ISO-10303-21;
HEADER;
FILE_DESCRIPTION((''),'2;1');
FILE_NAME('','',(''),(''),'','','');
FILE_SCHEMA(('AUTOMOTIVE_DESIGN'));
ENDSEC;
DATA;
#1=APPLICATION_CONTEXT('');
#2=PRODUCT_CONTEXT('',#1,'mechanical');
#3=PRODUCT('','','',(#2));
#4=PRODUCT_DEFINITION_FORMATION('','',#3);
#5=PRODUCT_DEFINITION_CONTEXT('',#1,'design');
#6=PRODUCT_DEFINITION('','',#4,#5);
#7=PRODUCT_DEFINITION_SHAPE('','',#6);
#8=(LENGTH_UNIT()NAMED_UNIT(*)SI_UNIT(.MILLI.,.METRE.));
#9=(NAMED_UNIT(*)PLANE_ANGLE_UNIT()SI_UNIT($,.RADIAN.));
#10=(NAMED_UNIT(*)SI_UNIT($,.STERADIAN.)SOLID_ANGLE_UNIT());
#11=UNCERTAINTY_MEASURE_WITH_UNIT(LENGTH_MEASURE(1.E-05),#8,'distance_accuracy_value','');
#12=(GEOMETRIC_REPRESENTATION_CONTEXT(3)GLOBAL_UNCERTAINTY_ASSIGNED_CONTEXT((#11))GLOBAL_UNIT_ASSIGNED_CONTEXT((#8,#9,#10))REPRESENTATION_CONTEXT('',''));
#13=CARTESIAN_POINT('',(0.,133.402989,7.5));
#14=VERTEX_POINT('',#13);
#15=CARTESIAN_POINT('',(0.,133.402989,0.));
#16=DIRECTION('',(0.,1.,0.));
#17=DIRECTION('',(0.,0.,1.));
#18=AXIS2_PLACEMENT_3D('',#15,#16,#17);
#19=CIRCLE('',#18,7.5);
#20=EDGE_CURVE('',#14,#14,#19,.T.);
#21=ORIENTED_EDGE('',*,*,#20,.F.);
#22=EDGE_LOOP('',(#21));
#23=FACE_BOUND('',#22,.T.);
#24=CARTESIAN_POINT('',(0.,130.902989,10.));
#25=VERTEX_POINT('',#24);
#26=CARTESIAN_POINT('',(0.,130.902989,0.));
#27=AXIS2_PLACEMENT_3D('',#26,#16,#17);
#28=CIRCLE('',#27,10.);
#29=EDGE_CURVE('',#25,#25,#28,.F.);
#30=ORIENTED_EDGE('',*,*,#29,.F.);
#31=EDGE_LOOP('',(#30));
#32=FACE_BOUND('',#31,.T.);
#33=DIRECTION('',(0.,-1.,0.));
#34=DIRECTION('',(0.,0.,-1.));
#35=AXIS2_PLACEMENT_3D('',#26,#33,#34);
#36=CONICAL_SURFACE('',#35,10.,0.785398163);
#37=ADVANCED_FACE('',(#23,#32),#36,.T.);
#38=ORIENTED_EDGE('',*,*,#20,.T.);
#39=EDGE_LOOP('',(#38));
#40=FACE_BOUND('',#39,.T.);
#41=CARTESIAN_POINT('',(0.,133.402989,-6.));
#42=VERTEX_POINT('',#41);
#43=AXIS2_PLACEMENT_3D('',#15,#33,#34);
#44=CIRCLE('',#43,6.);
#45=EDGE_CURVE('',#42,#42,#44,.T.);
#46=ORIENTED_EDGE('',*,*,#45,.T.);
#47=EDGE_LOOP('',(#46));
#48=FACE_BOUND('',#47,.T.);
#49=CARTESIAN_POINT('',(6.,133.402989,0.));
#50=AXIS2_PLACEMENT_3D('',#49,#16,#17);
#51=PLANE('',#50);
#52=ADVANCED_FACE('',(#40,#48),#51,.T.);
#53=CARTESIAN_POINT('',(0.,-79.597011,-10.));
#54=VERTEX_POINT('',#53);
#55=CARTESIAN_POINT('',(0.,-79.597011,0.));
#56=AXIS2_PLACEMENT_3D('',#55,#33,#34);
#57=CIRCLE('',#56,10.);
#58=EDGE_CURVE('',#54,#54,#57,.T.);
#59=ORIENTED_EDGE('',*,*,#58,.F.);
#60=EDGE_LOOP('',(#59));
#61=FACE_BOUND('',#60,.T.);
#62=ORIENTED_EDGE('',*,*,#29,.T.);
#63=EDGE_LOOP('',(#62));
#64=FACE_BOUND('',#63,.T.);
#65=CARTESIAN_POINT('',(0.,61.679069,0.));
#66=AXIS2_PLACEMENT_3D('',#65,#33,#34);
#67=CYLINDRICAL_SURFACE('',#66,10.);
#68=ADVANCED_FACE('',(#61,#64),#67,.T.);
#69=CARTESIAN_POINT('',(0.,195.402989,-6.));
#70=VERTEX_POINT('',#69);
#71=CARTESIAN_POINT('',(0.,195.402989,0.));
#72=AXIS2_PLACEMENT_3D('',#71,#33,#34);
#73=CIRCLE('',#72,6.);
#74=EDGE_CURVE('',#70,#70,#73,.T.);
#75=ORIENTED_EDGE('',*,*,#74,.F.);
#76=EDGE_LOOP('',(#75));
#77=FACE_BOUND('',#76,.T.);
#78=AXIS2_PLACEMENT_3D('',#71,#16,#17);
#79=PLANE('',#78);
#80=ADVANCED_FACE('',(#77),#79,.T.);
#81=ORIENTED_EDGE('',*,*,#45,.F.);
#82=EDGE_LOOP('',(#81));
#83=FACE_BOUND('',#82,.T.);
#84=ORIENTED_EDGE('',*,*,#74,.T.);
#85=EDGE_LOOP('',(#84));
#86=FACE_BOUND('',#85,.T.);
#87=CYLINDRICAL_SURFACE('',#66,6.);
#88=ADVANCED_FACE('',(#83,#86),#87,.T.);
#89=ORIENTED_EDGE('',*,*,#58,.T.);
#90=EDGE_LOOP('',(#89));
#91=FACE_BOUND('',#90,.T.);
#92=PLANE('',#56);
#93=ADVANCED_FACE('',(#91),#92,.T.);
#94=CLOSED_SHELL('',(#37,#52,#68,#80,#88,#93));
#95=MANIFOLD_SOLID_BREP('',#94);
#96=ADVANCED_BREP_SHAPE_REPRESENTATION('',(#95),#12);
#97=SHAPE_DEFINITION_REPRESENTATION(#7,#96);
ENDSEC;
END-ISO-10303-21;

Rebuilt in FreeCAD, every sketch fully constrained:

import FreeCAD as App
import Part
import Sketcher
Q = App.Units.Quantity


def edges_at(feature, points):
    """Names of the edges that pass closest to the given points."""
    edges = feature.Shape.Edges
    near = lambda p: min(range(len(edges)), key=lambda i: edges[i].distToShape(Part.Vertex(*p))[0])
    return sorted({f"Edge{near(p) + 1}" for p in points})

doc = App.newDocument("Part")
body = doc.addObject("PartDesign::Body", "Body")

sketch1 = doc.addObject("Sketcher::SketchObject", "Sketch")
body.addObject(sketch1)
sketch1.AttachmentSupport = (doc.XY_Plane, [""])
sketch1.MapMode = "FlatFace"
sketch1.addGeometry([
    Part.LineSegment(App.Vector(0, -79.6, 0), App.Vector(10, -79.6, 0)),
    Part.LineSegment(App.Vector(10, -79.6, 0), App.Vector(10, 133.4, 0)),
    Part.LineSegment(App.Vector(10, 133.4, 0), App.Vector(6, 133.4, 0)),
    Part.LineSegment(App.Vector(6, 133.4, 0), App.Vector(6, 195.4, 0)),
    Part.LineSegment(App.Vector(6, 195.4, 0), App.Vector(0, 195.4, 0)),
    Part.LineSegment(App.Vector(0, 195.4, 0), App.Vector(0, -79.6, 0)),
], False)
sketch1.addConstraint([
    Sketcher.Constraint("Coincident", 0, 2, 1, 1),
    Sketcher.Constraint("Coincident", 1, 2, 2, 1),
    Sketcher.Constraint("Coincident", 2, 2, 3, 1),
    Sketcher.Constraint("Coincident", 3, 2, 4, 1),
    Sketcher.Constraint("Coincident", 4, 2, 5, 1),
    Sketcher.Constraint("Coincident", 5, 2, 0, 1),
    Sketcher.Constraint("Horizontal", 0),
    Sketcher.Constraint("Vertical", 1),
    Sketcher.Constraint("Horizontal", 2),
    Sketcher.Constraint("Vertical", 3),
    Sketcher.Constraint("Horizontal", 4),
    Sketcher.Constraint("Vertical", 5),
    Sketcher.Constraint("PointOnObject", 4, 2, -2),
    Sketcher.Constraint("DistanceX", 0, 1, 0, 2, Q("10 mm")),
    Sketcher.Constraint("DistanceX", 2, 2, 2, 1, Q("4 mm")),
    Sketcher.Constraint("DistanceY", 1, 1, 1, 2, Q("213 mm")),
    Sketcher.Constraint("DistanceY", 3, 1, 3, 2, Q("62 mm")),
    Sketcher.Constraint("DistanceY", 0, 2, -1, 1, Q("79.597011 mm")),
])
revolution = doc.addObject("PartDesign::Revolution", "Revolution")
body.addObject(revolution)
revolution.Profile = sketch1
revolution.ReferenceAxis = (sketch1, ["V_Axis"])
revolution.Angle = 360
doc.recompute()

chamfer = doc.addObject("PartDesign::Chamfer", "Chamfer")
body.addObject(chamfer)
chamfer.Base = (revolution, edges_at(revolution, [(-10, 133.403, 0)]))
chamfer.Size = 2.5

doc.recompute()
